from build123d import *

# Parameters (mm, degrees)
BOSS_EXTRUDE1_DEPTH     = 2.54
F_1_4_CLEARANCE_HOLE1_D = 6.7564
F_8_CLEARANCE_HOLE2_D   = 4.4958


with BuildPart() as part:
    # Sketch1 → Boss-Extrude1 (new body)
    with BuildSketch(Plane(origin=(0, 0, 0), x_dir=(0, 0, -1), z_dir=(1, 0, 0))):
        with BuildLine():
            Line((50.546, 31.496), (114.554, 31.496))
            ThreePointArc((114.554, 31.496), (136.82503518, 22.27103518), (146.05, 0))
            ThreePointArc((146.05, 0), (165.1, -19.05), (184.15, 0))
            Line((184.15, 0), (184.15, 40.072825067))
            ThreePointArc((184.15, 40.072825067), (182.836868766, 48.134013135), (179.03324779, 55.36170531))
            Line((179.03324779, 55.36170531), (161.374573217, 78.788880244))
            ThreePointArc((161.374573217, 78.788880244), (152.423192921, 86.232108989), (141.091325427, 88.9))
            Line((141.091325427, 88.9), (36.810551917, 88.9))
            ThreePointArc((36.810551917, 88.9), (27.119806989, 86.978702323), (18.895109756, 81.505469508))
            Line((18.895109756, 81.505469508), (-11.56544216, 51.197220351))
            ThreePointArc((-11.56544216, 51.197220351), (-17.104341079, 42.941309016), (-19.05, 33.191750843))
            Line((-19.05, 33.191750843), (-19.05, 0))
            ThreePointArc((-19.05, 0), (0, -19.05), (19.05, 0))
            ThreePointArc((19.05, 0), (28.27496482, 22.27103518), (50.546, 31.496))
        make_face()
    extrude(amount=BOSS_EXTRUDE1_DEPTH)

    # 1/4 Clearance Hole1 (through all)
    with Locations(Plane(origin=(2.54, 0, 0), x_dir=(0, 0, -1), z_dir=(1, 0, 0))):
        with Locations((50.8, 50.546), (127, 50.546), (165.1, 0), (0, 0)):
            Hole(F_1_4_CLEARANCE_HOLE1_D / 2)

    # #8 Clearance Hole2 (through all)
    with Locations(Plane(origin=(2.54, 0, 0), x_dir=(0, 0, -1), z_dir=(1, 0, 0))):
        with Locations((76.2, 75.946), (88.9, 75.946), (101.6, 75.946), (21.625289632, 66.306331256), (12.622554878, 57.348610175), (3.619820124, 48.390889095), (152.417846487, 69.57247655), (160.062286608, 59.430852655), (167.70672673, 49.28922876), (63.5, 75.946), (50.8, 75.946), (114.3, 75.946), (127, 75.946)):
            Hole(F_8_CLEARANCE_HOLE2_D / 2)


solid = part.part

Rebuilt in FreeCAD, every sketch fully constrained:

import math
import FreeCAD as App
import Part
import Sketcher
Q = App.Units.Quantity

doc = App.newDocument("Part")
body = doc.addObject("PartDesign::Body", "Body")

# Sketch on YZ plane
sketch1 = doc.addObject("Sketcher::SketchObject", "Sketch")
body.addObject(sketch1)
sketch1.AttachmentSupport = (doc.YZ_Plane, [""])
sketch1.MapMode = "FlatFace"
sketch1.addGeometry(Part.LineSegment(App.Vector(31, -51, 0), App.Vector(31, -115, 0)), False)
sketch1.addGeometry(Part.ArcOfCircle(Part.Circle(App.Vector(0, -115, 0), App.Vector(0, 0, 1), 31), math.radians(-90), math.radians(0)), False)
sketch1.addGeometry(Part.ArcOfCircle(Part.Circle(App.Vector(0, -165, 0), App.Vector(0, 0, 1), 19), math.radians(90), math.radians(270)), False)
sketch1.addGeometry(Part.LineSegment(App.Vector(0, -184, 0), App.Vector(40, -184, 0)), False)
sketch1.addGeometry(Part.ArcOfCircle(Part.Circle(App.Vector(40, -159, 0), App.Vector(0, 0, 1), 25), math.radians(-90), math.radians(-53)), False)
sketch1.addGeometry(Part.LineSegment(App.Vector(55, -179, 0), App.Vector(79, -161, 0)), False)
sketch1.addGeometry(Part.ArcOfCircle(Part.Circle(App.Vector(63, -141, 0), App.Vector(0, 0, 1), 25), math.radians(-53), math.radians(0)), False)
sketch1.addGeometry(Part.LineSegment(App.Vector(89, -141, 0), App.Vector(89, -37, 0)), False)
sketch1.addGeometry(Part.ArcOfCircle(Part.Circle(App.Vector(64, -37, 0), App.Vector(0, 0, 1), 25), math.radians(0), math.radians(45)), False)
sketch1.addGeometry(Part.LineSegment(App.Vector(82, -19, 0), App.Vector(51, 12, 0)), False)
sketch1.addGeometry(Part.ArcOfCircle(Part.Circle(App.Vector(33, -6, 0), App.Vector(0, 0, 1), 25), math.radians(45), math.radians(90)), False)
sketch1.addGeometry(Part.LineSegment(App.Vector(33, 19, 0), App.Vector(0, 19, 0)), False)
sketch1.addGeometry(Part.ArcOfCircle(Part.Circle(App.Vector(0, 0, 0), App.Vector(0, 0, 1), 19), math.radians(90), math.radians(270)), False)
sketch1.addGeometry(Part.ArcOfCircle(Part.Circle(App.Vector(0, -51, 0), App.Vector(0, 0, 1), 31), math.radians(0), math.radians(90)), False)
sketch1.addConstraint(Sketcher.Constraint("Tangent", 0, 2, 1, 2))
sketch1.addConstraint(Sketcher.Constraint("Tangent", 1, 1, 2, 1))
sketch1.addConstraint(Sketcher.Constraint("Tangent", 2, 2, 3, 1))
sketch1.addConstraint(Sketcher.Constraint("Tangent", 3, 2, 4, 1))
sketch1.addConstraint(Sketcher.Constraint("Tangent", 4, 2, 5, 1))
sketch1.addConstraint(Sketcher.Constraint("Tangent", 5, 2, 6, 1))
sketch1.addConstraint(Sketcher.Constraint("Tangent", 6, 2, 7, 1))
sketch1.addConstraint(Sketcher.Constraint("Tangent", 7, 2, 8, 1))
sketch1.addConstraint(Sketcher.Constraint("Tangent", 8, 2, 9, 1))
sketch1.addConstraint(Sketcher.Constraint("Tangent", 9, 2, 10, 1))
sketch1.addConstraint(Sketcher.Constraint("Tangent", 10, 2, 11, 1))
sketch1.addConstraint(Sketcher.Constraint("Tangent", 11, 2, 12, 1))
sketch1.addConstraint(Sketcher.Constraint("Tangent", 12, 2, 13, 2))
sketch1.addConstraint(Sketcher.Constraint("Tangent", 13, 1, 0, 1))
sketch1.addConstraint(Sketcher.Constraint("Vertical", 0))
sketch1.addConstraint(Sketcher.Constraint("Horizontal", 3))
sketch1.addConstraint(Sketcher.Constraint("Vertical", 7))
sketch1.addConstraint(Sketcher.Constraint("Horizontal", 11))
sketch1.addConstraint(Sketcher.Constraint("Coincident", 12, 3, -1, 1))
sketch1.addConstraint(Sketcher.Constraint("Equal", 4, 6))
sketch1.addConstraint(Sketcher.Constraint("Equal", 6, 8))
sketch1.addConstraint(Sketcher.Constraint("Equal", 8, 10))
sketch1.addConstraint(Sketcher.Constraint("Equal", 2, 12))
sketch1.addConstraint(Sketcher.Constraint("Equal", 1, 13))
sketch1.addConstraint(Sketcher.Constraint("PointOnObject", 1, 3, -2))
sketch1.addConstraint(Sketcher.Constraint("PointOnObject", 2, 3, -2))
sketch1.addConstraint(Sketcher.Constraint("Radius", 4, Q("1 in")))
sketch1.addConstraint(Sketcher.Constraint("Radius", 1, Q("1.24 in")))
sketch1.addConstraint(Sketcher.Constraint("Radius", 2, Q("0.75 in")))
sketch1.addConstraint(Sketcher.Constraint("DistanceY", 4, 3, 10, 3, Q("6 in")))
sketch1.addConstraint(Sketcher.Constraint("DistanceX", -1, 1, 6, 3, Q("2.5 in")))
sketch1.addConstraint(Sketcher.Constraint("DistanceX", 11, 2, 11, 1, 33.191751))
sketch1.addConstraint(Sketcher.Constraint("Distance", 5, 29.33703))
sketch1.addConstraint(Sketcher.Constraint("DistanceX", 3, 1, 3, 2, 40.072825))
sketch1.addConstraint(Sketcher.Constraint("DistanceY", 7, 1, 7, 2, 104.280774))
pad1 = doc.addObject("PartDesign::Pad", "Pad")
body.addObject(pad1)
pad1.Profile = sketch1
pad1.Length = Q("0.1 in")

# Sketch on YZ plane
sketch2 = doc.addObject("Sketcher::SketchObject", "Sketch001")
body.addObject(sketch2)
sketch2.AttachmentSupport = (doc.YZ_Plane, [""])
sketch2.MapMode = "FlatFace"
sketch2.AttachmentOffset = App.Placement(App.Vector(0, 0, 0.1 * 25.4), App.Rotation())
sketch2.addGeometry(Part.Circle(App.Vector(50.5, -50.8, 0), App.Vector(0, 0, 1), 3.4), False)
sketch2.addGeometry(Part.Circle(App.Vector(50.5, -127, 0), App.Vector(0, 0, 1), 3.4), False)
sketch2.addGeometry(Part.Circle(App.Vector(0, -165.1, 0), App.Vector(0, 0, 1), 3.4), False)
sketch2.addGeometry(Part.Circle(App.Vector(0, 0, 0), App.Vector(0, 0, 1), 3.4), False)
sketch2.addConstraint(Sketcher.Constraint("Coincident", 3, 3, -1, 1))
sketch2.addConstraint(Sketcher.Constraint("Equal", 0, 1))
sketch2.addConstraint(Sketcher.Constraint("Equal", 1, 2))
sketch2.addConstraint(Sketcher.Constraint("Equal", 2, 3))
sketch2.addConstraint(Sketcher.Constraint("PointOnObject", 2, 3, -2))
sketch2.addConstraint(Sketcher.Constraint("Vertical", 0, 3, 1, 3))
sketch2.addConstraint(Sketcher.Constraint("Diameter", 0, Q("0.266 in")))
sketch2.addConstraint(Sketcher.Constraint("DistanceY", 0, 3, -1, 1, Q("2 in")))
sketch2.addConstraint(Sketcher.Constraint("DistanceY", 1, 3, -1, 1, Q("5 in")))
sketch2.addConstraint(Sketcher.Constraint("DistanceY", 2, 3, -1, 1, Q("6.5 in")))
sketch2.addConstraint(Sketcher.Constraint("DistanceX", -1, 1, 0, 3, Q("1.99 in")))
doc.recompute()
hole = doc.addObject("PartDesign::Hole", "Hole")
body.addObject(hole)
hole.Profile = sketch2
hole.ThreadType = "None"
hole.Diameter = Q("0.266 in")
hole.DepthType = "ThroughAll"

# Sketch on YZ plane
sketch3 = doc.addObject("Sketcher::SketchObject", "Sketch002")
body.addObject(sketch3)
sketch3.AttachmentSupport = (doc.YZ_Plane, [""])
sketch3.MapMode = "FlatFace"
sketch3.AttachmentOffset = App.Placement(App.Vector(0, 0, 0.1 * 25.4), App.Rotation())
sketch3.addGeometry(Part.Circle(App.Vector(75.9, -76.2, 0), App.Vector(0, 0, 1), 2.2), False)
sketch3.addGeometry(Part.Circle(App.Vector(75.9, -88.9, 0), App.Vector(0, 0, 1), 2.2), False)
sketch3.addGeometry(Part.Circle(App.Vector(75.9, -101.6, 0), App.Vector(0, 0, 1), 2.2), False)
sketch3.addGeometry(Part.Circle(App.Vector(66.3, -21.6, 0), App.Vector(0, 0, 1), 2.2), False)
sketch3.addGeometry(Part.Circle(App.Vector(57.3, -12.6, 0), App.Vector(0, 0, 1), 2.2), False)
sketch3.addGeometry(Part.Circle(App.Vector(48.4, -3.6, 0), App.Vector(0, 0, 1), 2.2), False)
sketch3.addGeometry(Part.Circle(App.Vector(69.6, -152.4, 0), App.Vector(0, 0, 1), 2.2), False)
sketch3.addGeometry(Part.Circle(App.Vector(59.4, -160.1, 0), App.Vector(0, 0, 1), 2.2), False)
sketch3.addGeometry(Part.Circle(App.Vector(49.3, -167.7, 0), App.Vector(0, 0, 1), 2.2), False)
sketch3.addGeometry(Part.Circle(App.Vector(75.9, -63.5, 0), App.Vector(0, 0, 1), 2.2), False)
sketch3.addGeometry(Part.Circle(App.Vector(75.9, -50.8, 0), App.Vector(0, 0, 1), 2.2), False)
sketch3.addGeometry(Part.Circle(App.Vector(75.9, -114.3, 0), App.Vector(0, 0, 1), 2.2), False)
sketch3.addGeometry(Part.Circle(App.Vector(75.9, -127, 0), App.Vector(0, 0, 1), 2.2), False)
sketch3.addConstraint(Sketcher.Constraint("Equal", 0, 1))
sketch3.addConstraint(Sketcher.Constraint("Equal", 1, 2))
sketch3.addConstraint(Sketcher.Constraint("Equal", 2, 3))
sketch3.addConstraint(Sketcher.Constraint("Equal", 3, 4))
sketch3.addConstraint(Sketcher.Constraint("Equal", 4, 5))
sketch3.addConstraint(Sketcher.Constraint("Equal", 5, 6))
sketch3.addConstraint(Sketcher.Constraint("Equal", 6, 7))
sketch3.addConstraint(Sketcher.Constraint("Equal", 7, 8))
sketch3.addConstraint(Sketcher.Constraint("Equal", 8, 9))
sketch3.addConstraint(Sketcher.Constraint("Equal", 9, 10))
sketch3.addConstraint(Sketcher.Constraint("Equal", 10, 11))
sketch3.addConstraint(Sketcher.Constraint("Equal", 11, 12))
sketch3.addConstraint(Sketcher.Constraint("Vertical", 0, 3, 1, 3))
sketch3.addConstraint(Sketcher.Constraint("Vertical", 1, 3, 2, 3))
sketch3.addConstraint(Sketcher.Constraint("Vertical", 2, 3, 9, 3))
sketch3.addConstraint(Sketcher.Constraint("Vertical", 9, 3, 10, 3))
sketch3.addConstraint(Sketcher.Constraint("Vertical", 10, 3, 11, 3))
sketch3.addConstraint(Sketcher.Constraint("Vertical", 11, 3, 12, 3))
sketch3.addConstraint(Sketcher.Constraint("Diameter", 0, Q("0.177 in")))
sketch3.addConstraint(Sketcher.Constraint("DistanceY", 0, 3, -1, 1, Q("3 in")))
sketch3.addConstraint(Sketcher.Constraint("DistanceY", 2, 3, -1, 1, Q("4 in")))
sketch3.addConstraint(Sketcher.Constraint("DistanceY", 10, 3, -1, 1, Q("2 in")))
sketch3.addConstraint(Sketcher.Constraint("DistanceY", 12, 3, -1, 1, Q("5 in")))
sketch3.addConstraint(Sketcher.Constraint("DistanceY", 1, 3, 9, 3, Q("1 in")))
sketch3.addConstraint(Sketcher.Constraint("DistanceY", 11, 3, 1, 3, Q("1 in")))
sketch3.addConstraint(Sketcher.Constraint("DistanceY", 1, 3, -1, 1, Q("3.5 in")))
sketch3.addConstraint(Sketcher.Constraint("DistanceX", -1, 1, 0, 3, Q("2.99 in")))
sketch3.addConstraint(Sketcher.Constraint("DistanceX", -1, 1, 3, 3, 66.306331))
sketch3.addConstraint(Sketcher.Constraint("DistanceY", 3, 3, -1, 1, 21.62529))
sketch3.addConstraint(Sketcher.Constraint("DistanceX", -1, 1, 4, 3, 57.34861))
sketch3.addConstraint(Sketcher.Constraint("DistanceX", -1, 1, 5, 3, 48.390889))
sketch3.addConstraint(Sketcher.Constraint("DistanceY", 5, 3, -1, 1, 3.61982))
sketch3.addConstraint(Sketcher.Constraint("DistanceX", -1, 1, 8, 3, 49.289229))
sketch3.addConstraint(Sketcher.Constraint("DistanceY", 6, 3, 4, 3, 139.795292))
sketch3.addConstraint(Sketcher.Constraint("DistanceY", 7, 3, 6, 3, 7.64444))
sketch3.addConstraint(Sketcher.Constraint("DistanceX", 7, 3, 3, 3, 6.875479))
sketch3.addConstraint(Sketcher.Constraint("DistanceY", 8, 3, 7, 3, 7.64444))
sketch3.addConstraint(Sketcher.Constraint("DistanceY", 4, 3, -1, 1, 12.622555))
sketch3.addConstraint(Sketcher.Constraint("DistanceX", -1, 1, 6, 3, 69.572477))
doc.recompute()
hole2 = doc.addObject("PartDesign::Hole", "Hole001")
body.addObject(hole2)
hole2.Profile = sketch3
hole2.ThreadType = "None"
hole2.Diameter = Q("0.177 in")
hole2.DepthType = "ThroughAll"

doc.recompute()
